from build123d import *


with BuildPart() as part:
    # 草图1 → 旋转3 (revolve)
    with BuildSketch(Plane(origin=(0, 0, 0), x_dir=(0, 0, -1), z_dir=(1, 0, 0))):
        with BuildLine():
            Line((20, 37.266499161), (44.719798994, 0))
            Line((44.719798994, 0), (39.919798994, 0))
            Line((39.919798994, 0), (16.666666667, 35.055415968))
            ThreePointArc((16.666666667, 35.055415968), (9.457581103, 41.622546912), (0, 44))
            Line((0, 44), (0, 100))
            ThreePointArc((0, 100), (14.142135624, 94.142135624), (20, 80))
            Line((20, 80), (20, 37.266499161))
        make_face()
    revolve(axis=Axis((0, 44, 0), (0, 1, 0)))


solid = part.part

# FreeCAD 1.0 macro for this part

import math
import FreeCAD as App
import Part
import Sketcher

V = App.Vector

doc = App.newDocument("Part")
body = doc.addObject("PartDesign::Body", "Body")

# Sketch on YZ plane
sketch1 = doc.addObject("Sketcher::SketchObject", "Sketch")
body.addObject(sketch1)
sketch1.AttachmentSupport = (doc.YZ_Plane, [""])
sketch1.MapMode = "FlatFace"
sketch1.addGeometry(Part.LineSegment(V(0, -44.7, 0), V(37.3, -20, 0)), False)
sketch1.addGeometry(Part.LineSegment(V(37.3, -20, 0), V(80, -20, 0)), False)
sketch1.addGeometry(Part.ArcOfCircle(Part.Circle(V(80, 0, 0), V(0, 0, 1), 20), math.radians(-90), math.radians(0)), False)
sketch1.addGeometry(Part.LineSegment(V(100, 0, 0), V(44, 0, 0)), False)
sketch1.addGeometry(Part.ArcOfCircle(Part.Circle(V(24, 0, 0), V(0, 0, 1), 20), math.radians(-56), math.radians(0)), False)
sketch1.addGeometry(Part.LineSegment(V(35.1, -16.7, 0), V(0, -39.9, 0)), False)
sketch1.addGeometry(Part.LineSegment(V(0, -39.9, 0), V(0, -44.7, 0)), False)
sketch1.addConstraint(Sketcher.Constraint("Coincident", 0, 2, 1, 1))
sketch1.addConstraint(Sketcher.Constraint("Tangent", 1, 2, 2, 1))
sketch1.addConstraint(Sketcher.Constraint("Coincident", 2, 2, 3, 1))
sketch1.addConstraint(Sketcher.Constraint("Coincident", 3, 2, 4, 2))
sketch1.addConstraint(Sketcher.Constraint("Tangent", 4, 1, 5, 1))
sketch1.addConstraint(Sketcher.Constraint("Coincident", 5, 2, 6, 1))
sketch1.addConstraint(Sketcher.Constraint("Coincident", 6, 2, 0, 1))
sketch1.addConstraint(Sketcher.Constraint("Horizontal", 1))
sketch1.addConstraint(Sketcher.Constraint("Horizontal", 3))
sketch1.addConstraint(Sketcher.Constraint("Vertical", 6))
sketch1.addConstraint(Sketcher.Constraint("Equal", 2, 4))
sketch1.addConstraint(Sketcher.Constraint("PointOnObject", 2, 3, -1))
sketch1.addConstraint(Sketcher.Constraint("PointOnObject", 4, 3, -1))
sketch1.addConstraint(Sketcher.Constraint("PointOnObject", 2, 2, -1))
sketch1.addConstraint(Sketcher.Constraint("PointOnObject", 5, 2, -2))
sketch1.addConstraint(Sketcher.Constraint("Parallel", 0, 5))
sketch1.addConstraint(Sketcher.Constraint("Radius", 2, 20.0))
sketch1.addConstraint(Sketcher.Constraint("DistanceX", 3, 2, 3, 1, 56.0))
sketch1.addConstraint(Sketcher.Constraint("DistanceY", 6, 2, 6, 1, 4.8))
sketch1.addConstraint(Sketcher.Constraint("DistanceX", -1, 1, 2, 3, 80.0))
sketch1.addConstraint(Sketcher.Constraint("DistanceX", 1, 1, 1, 2, 42.733501))
revolution = doc.addObject("PartDesign::Revolution", "Revolution")
body.addObject(revolution)
revolution.Profile = sketch1
revolution.ReferenceAxis = (sketch1, ["H_Axis"])
revolution.Angle = 360

doc.recompute()
